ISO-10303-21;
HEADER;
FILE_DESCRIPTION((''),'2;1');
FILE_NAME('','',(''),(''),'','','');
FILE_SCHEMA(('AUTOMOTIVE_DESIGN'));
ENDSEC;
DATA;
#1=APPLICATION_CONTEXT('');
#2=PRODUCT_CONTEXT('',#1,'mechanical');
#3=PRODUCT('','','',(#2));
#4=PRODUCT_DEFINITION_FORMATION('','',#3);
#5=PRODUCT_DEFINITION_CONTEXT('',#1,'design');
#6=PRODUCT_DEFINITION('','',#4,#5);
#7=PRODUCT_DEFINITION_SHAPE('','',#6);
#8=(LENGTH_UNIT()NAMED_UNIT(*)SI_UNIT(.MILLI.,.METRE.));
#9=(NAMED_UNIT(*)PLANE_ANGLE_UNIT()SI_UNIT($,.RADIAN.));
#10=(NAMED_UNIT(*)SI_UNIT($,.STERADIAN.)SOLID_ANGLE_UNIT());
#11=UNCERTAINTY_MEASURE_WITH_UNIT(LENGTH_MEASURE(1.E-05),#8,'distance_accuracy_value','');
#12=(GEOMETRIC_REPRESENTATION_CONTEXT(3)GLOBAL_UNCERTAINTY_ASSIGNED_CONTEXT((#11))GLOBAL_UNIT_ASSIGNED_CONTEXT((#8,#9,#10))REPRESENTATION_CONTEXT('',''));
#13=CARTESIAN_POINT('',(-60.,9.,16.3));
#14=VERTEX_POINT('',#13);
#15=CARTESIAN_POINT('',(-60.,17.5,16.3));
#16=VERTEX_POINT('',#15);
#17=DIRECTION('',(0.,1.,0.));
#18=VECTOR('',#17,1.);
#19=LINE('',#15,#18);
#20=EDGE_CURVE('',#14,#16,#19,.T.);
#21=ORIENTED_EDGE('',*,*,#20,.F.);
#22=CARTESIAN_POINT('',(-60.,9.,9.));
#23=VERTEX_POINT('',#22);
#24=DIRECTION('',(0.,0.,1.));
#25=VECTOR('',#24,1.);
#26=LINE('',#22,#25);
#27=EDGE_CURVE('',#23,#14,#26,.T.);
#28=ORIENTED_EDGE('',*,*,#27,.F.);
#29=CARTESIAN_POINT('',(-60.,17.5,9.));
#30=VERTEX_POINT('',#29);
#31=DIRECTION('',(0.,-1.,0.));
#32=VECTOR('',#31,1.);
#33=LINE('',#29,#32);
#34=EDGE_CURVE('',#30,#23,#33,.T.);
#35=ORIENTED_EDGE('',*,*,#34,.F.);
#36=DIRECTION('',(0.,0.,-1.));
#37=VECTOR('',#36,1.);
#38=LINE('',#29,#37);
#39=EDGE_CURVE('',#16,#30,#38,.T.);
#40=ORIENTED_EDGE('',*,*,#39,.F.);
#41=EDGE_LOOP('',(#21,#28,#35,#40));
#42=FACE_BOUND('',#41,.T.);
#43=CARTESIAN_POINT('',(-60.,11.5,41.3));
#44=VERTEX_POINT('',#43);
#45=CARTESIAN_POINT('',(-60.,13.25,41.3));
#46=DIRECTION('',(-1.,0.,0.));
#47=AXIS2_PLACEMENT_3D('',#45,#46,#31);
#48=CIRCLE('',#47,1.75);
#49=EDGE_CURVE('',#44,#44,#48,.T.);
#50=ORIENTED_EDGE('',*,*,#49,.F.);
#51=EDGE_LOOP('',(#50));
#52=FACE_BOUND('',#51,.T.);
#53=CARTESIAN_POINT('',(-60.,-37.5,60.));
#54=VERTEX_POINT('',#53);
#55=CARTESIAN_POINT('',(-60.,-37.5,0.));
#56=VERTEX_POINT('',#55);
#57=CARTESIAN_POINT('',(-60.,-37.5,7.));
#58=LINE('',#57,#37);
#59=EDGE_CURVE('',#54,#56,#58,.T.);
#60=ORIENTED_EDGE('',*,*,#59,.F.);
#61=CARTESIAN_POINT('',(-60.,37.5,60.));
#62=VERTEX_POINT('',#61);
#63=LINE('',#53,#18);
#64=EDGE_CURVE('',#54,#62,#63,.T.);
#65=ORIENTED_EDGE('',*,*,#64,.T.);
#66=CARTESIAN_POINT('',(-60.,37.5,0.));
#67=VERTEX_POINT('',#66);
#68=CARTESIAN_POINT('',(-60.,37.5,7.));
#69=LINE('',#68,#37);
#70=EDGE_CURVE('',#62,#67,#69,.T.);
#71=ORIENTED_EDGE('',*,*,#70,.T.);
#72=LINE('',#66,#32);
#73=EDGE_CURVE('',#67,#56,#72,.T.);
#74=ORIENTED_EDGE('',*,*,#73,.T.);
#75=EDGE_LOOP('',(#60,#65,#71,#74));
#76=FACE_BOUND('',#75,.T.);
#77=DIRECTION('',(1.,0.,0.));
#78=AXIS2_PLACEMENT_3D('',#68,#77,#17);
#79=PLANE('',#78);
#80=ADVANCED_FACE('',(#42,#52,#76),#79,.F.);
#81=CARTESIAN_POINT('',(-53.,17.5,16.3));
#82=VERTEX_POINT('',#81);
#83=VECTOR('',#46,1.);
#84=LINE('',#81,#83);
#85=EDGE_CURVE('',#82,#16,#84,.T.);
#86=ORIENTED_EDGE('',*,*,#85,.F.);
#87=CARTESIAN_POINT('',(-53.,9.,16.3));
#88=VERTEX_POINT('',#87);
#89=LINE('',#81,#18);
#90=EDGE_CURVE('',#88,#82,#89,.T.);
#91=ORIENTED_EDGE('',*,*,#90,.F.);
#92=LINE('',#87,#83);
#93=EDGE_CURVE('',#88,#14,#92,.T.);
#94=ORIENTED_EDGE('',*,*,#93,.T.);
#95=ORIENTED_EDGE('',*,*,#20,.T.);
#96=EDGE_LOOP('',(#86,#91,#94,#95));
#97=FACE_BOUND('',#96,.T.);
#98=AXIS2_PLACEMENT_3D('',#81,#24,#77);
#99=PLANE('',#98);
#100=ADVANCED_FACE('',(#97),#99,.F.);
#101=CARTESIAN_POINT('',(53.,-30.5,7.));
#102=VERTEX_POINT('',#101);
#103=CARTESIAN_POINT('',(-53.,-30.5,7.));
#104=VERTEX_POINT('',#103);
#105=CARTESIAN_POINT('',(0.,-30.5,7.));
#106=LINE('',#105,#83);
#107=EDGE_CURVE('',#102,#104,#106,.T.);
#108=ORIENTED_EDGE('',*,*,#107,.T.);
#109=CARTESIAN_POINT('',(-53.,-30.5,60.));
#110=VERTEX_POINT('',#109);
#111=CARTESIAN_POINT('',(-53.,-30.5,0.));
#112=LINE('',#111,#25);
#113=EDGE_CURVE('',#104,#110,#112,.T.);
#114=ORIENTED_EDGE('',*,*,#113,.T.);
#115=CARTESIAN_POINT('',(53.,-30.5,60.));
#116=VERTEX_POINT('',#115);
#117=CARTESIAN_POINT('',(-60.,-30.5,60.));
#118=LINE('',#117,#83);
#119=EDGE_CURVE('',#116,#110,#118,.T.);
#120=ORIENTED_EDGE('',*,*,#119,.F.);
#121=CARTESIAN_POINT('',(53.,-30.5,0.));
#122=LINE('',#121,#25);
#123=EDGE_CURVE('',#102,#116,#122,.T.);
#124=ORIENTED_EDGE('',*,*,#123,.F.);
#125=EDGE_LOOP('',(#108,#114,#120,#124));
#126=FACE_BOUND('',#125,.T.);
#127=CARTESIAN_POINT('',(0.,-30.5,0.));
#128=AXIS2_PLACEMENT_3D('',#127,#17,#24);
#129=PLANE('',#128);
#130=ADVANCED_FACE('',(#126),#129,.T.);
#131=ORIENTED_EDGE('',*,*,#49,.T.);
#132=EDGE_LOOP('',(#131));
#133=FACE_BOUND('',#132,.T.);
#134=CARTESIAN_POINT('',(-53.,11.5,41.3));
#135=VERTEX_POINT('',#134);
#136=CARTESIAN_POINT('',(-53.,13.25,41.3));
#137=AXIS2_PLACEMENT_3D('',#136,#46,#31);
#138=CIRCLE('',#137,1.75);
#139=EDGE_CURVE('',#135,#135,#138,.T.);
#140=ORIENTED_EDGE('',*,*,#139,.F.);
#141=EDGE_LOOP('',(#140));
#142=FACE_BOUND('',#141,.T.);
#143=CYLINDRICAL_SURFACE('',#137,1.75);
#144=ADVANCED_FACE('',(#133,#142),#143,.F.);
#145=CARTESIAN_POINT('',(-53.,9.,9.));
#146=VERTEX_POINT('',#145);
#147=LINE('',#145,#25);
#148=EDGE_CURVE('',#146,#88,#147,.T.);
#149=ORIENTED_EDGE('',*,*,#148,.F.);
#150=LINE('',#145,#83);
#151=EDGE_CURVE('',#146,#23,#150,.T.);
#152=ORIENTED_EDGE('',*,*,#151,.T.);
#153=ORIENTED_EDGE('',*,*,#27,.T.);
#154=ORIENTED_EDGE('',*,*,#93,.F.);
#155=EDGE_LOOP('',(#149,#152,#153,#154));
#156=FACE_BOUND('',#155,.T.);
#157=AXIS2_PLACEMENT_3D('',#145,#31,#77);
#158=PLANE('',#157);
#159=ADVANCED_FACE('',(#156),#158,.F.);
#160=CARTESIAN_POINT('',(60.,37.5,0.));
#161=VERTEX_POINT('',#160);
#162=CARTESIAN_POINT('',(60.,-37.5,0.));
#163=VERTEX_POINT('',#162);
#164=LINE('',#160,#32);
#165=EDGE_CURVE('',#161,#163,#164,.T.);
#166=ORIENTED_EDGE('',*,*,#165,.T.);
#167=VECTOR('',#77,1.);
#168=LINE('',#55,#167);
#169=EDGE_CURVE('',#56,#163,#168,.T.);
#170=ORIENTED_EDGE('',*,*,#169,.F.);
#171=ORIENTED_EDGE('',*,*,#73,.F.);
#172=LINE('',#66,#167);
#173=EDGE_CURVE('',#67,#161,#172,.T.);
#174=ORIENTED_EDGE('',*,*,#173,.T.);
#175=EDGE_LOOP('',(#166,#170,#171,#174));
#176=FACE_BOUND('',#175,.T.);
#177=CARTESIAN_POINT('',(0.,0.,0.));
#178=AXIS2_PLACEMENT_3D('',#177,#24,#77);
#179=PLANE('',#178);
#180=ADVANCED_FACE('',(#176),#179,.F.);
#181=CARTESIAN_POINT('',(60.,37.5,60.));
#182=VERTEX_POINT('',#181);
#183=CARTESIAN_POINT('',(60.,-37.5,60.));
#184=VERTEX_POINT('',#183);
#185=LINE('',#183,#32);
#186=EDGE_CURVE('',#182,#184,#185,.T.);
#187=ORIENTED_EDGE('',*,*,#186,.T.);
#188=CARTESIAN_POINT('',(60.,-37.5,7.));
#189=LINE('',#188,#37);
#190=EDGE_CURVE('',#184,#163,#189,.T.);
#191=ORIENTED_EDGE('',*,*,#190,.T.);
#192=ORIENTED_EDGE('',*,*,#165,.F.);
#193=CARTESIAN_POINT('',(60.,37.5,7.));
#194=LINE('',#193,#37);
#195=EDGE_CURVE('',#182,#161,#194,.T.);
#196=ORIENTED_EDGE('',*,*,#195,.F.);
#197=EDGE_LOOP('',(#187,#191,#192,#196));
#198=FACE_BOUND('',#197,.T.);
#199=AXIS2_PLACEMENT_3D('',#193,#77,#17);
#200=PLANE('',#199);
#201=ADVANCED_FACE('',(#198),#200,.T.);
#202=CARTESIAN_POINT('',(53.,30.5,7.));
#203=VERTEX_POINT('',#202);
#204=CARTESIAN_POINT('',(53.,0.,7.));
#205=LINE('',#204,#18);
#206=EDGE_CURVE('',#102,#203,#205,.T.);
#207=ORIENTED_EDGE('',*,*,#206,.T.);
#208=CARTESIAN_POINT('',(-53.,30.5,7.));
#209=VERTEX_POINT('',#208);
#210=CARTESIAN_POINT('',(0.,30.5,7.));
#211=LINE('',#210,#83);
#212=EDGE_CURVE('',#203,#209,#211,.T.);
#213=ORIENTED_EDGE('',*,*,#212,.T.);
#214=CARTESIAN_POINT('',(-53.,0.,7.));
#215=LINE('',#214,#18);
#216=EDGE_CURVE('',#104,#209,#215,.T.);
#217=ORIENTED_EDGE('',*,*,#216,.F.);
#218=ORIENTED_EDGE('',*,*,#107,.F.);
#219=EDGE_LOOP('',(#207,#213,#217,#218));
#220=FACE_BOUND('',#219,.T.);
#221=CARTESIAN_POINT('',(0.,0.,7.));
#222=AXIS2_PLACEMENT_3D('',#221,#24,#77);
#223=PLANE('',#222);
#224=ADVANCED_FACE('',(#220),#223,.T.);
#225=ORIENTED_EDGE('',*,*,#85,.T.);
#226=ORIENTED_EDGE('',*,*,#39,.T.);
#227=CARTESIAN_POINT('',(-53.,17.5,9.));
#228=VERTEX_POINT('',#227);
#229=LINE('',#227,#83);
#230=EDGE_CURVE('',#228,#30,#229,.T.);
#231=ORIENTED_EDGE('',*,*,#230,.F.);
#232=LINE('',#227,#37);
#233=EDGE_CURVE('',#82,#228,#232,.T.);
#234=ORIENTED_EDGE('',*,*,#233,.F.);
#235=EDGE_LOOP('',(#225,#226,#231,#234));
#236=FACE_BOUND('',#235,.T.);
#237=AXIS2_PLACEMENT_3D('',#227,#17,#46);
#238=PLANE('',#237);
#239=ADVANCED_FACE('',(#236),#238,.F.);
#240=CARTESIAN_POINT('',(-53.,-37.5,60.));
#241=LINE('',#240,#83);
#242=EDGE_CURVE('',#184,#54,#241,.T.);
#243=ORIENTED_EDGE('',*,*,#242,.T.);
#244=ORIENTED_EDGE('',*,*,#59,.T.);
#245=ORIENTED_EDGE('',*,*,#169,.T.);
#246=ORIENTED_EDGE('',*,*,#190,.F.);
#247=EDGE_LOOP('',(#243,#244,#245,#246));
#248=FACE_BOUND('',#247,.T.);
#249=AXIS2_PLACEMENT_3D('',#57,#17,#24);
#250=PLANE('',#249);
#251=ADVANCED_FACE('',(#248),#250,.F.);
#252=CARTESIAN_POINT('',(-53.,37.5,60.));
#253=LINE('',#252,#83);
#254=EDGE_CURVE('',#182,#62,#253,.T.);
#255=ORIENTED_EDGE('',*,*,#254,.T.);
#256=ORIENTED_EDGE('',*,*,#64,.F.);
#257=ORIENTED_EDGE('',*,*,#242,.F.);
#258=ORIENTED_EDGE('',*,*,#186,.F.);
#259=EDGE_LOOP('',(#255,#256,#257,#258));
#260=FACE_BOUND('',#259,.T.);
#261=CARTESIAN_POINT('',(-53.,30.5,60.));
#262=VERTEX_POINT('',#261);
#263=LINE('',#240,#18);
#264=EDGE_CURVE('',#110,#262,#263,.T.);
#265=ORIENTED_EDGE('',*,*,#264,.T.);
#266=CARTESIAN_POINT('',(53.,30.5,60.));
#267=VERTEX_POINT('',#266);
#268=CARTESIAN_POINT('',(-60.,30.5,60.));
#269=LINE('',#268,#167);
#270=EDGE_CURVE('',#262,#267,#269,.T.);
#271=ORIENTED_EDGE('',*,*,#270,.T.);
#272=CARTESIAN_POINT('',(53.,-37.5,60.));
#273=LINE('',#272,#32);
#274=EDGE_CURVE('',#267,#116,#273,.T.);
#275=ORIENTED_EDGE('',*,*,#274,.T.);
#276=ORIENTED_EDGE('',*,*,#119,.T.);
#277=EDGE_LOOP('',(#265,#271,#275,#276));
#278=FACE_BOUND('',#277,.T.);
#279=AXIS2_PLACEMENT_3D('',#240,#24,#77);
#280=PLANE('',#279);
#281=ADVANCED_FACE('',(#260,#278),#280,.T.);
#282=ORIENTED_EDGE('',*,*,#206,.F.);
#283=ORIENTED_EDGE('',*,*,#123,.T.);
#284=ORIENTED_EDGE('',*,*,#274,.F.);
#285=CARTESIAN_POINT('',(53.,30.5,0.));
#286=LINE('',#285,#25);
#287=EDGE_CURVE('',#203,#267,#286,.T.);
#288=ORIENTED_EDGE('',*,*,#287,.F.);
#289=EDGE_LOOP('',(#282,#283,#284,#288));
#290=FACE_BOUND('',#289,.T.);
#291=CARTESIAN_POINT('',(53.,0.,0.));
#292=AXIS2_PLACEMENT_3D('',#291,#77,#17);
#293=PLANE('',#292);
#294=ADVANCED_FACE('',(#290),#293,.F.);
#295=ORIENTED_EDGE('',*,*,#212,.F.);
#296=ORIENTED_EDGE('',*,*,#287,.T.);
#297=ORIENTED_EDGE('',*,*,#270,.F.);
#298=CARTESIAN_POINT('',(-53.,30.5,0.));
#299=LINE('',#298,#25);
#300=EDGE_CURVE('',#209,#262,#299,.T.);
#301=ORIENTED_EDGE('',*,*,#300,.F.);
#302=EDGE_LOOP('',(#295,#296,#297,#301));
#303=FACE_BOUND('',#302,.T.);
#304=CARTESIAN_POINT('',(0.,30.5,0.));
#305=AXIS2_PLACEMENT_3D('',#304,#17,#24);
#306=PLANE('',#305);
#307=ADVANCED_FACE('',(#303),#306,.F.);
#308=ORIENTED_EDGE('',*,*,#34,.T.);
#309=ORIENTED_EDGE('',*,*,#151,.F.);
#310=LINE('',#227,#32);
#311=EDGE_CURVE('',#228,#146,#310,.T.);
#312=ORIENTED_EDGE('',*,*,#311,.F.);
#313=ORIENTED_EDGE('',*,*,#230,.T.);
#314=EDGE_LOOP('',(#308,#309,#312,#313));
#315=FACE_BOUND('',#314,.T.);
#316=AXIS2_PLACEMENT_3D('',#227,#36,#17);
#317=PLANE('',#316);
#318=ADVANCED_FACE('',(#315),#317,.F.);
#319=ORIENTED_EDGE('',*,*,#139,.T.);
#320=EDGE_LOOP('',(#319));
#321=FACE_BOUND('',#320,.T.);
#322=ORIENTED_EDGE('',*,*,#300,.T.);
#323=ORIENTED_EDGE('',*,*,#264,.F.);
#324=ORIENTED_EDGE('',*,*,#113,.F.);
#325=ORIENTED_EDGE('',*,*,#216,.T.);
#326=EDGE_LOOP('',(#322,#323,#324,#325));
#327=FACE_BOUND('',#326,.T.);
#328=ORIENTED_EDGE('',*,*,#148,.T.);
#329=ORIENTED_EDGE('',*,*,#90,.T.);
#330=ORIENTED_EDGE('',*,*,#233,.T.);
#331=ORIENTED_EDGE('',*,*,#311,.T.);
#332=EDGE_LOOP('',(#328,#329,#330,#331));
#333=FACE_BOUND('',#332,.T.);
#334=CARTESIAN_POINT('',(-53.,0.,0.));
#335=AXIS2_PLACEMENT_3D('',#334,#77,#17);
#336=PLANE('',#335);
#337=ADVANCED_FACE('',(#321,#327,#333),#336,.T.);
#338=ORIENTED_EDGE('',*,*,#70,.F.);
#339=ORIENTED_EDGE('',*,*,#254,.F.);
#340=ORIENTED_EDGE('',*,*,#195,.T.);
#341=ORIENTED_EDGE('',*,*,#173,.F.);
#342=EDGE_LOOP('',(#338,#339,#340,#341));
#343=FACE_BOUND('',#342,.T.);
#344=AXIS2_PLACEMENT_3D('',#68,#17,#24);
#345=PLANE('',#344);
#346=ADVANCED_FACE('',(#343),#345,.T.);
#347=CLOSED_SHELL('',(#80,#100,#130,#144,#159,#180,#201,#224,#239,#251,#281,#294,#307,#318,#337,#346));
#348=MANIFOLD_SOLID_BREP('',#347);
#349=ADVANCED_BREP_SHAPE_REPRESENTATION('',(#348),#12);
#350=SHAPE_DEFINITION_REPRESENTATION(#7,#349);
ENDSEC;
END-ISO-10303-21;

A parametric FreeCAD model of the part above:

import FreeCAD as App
import Part
import Sketcher
from FreeCAD import Vector
Q = App.Units.Quantity

doc = App.newDocument("Part")
body = doc.addObject("PartDesign::Body", "Body")

# Sketch on XY plane
sketch1 = body.newObject("Sketcher::SketchObject", "Sketch")
sketch1.AttachmentSupport = (doc.getObject("XY_Plane"), [""])
sketch1.MapMode = "FlatFace"
sketch1.addGeometry([
    Part.LineSegment(Vector(-60, 38, 0), Vector(-60, -38, 0)),
    Part.LineSegment(Vector(-60, -38, 0), Vector(60, -38, 0)),
    Part.LineSegment(Vector(60, -38, 0), Vector(60, 38, 0)),
    Part.LineSegment(Vector(60, 38, 0), Vector(-60, 38, 0)),
], False)
sketch1.addConstraint([
    Sketcher.Constraint("Coincident", 0, 2, 1, 1),
    Sketcher.Constraint("Coincident", 1, 2, 2, 1),
    Sketcher.Constraint("Coincident", 2, 2, 3, 1),
    Sketcher.Constraint("Coincident", 3, 2, 0, 1),
    Sketcher.Constraint("Vertical", 0),
    Sketcher.Constraint("Horizontal", 1),
    Sketcher.Constraint("Vertical", 2),
    Sketcher.Constraint("Horizontal", 3),
    Sketcher.Constraint("Symmetric", 0, 2, 2, 2, -1, 1),
    Sketcher.Constraint("DistanceX", 1, 1, 1, 2, Q("120 mm")),
    Sketcher.Constraint("DistanceY", 0, 2, 0, 1, Q("75 mm")),
])
pad1 = body.newObject("PartDesign::Pad", "Pad")
pad1.Profile = sketch1
pad1.Length = 7

# Sketch on YZ plane
sketch2 = body.newObject("Sketcher::SketchObject", "Sketch001")
sketch2.AttachmentSupport = (doc.getObject("YZ_Plane"), [""])
sketch2.MapMode = "FlatFace"
sketch2.AttachmentOffset = App.Placement(Vector(0, 0, -60), App.Rotation())
sketch2.addGeometry([
    Part.LineSegment(Vector(38, 0, 0), Vector(-38, 0, 0)),
    Part.LineSegment(Vector(-38, 0, 0), Vector(-38, 60, 0)),
    Part.LineSegment(Vector(-38, 60, 0), Vector(38, 60, 0)),
    Part.LineSegment(Vector(38, 60, 0), Vector(38, 0, 0)),
], False)
sketch2.addConstraint([
    Sketcher.Constraint("Coincident", 0, 2, 1, 1),
    Sketcher.Constraint("Coincident", 1, 2, 2, 1),
    Sketcher.Constraint("Coincident", 2, 2, 3, 1),
    Sketcher.Constraint("Coincident", 3, 2, 0, 1),
    Sketcher.Constraint("Horizontal", 0),
    Sketcher.Constraint("Vertical", 1),
    Sketcher.Constraint("Horizontal", 2),
    Sketcher.Constraint("Vertical", 3),
    Sketcher.Constraint("Symmetric", 0, 2, 3, 2, -1, 1),
    Sketcher.Constraint("DistanceX", 0, 2, 0, 1, Q("75 mm")),
    Sketcher.Constraint("DistanceY", 1, 1, 1, 2, Q("60 mm")),
])
pad2 = body.newObject("PartDesign::Pad", "Pad001")
pad2.Profile = sketch2
pad2.Length = 7

# Sketch on YZ plane
sketch3 = body.newObject("Sketcher::SketchObject", "Sketch002")
sketch3.AttachmentSupport = (doc.getObject("YZ_Plane"), [""])
sketch3.MapMode = "FlatFace"
sketch3.AttachmentOffset = App.Placement(Vector(0, 0, 60), App.Rotation())
sketch3.addGeometry([
    Part.LineSegment(Vector(38, 60, 0), Vector(-38, 60, 0)),
    Part.LineSegment(Vector(-38, 60, 0), Vector(-38, 0, 0)),
    Part.LineSegment(Vector(-38, 0, 0), Vector(38, 0, 0)),
    Part.LineSegment(Vector(38, 0, 0), Vector(38, 60, 0)),
], False)
sketch3.addConstraint([
    Sketcher.Constraint("Coincident", 0, 2, 1, 1),
    Sketcher.Constraint("Coincident", 1, 2, 2, 1),
    Sketcher.Constraint("Coincident", 2, 2, 3, 1),
    Sketcher.Constraint("Coincident", 3, 2, 0, 1),
    Sketcher.Constraint("Horizontal", 0),
    Sketcher.Constraint("Vertical", 1),
    Sketcher.Constraint("Horizontal", 2),
    Sketcher.Constraint("Vertical", 3),
    Sketcher.Constraint("Symmetric", 1, 2, 2, 2, -1, 1),
    Sketcher.Constraint("DistanceX", 0, 2, 0, 1, Q("75 mm")),
    Sketcher.Constraint("DistanceY", 1, 2, 1, 1, Q("60 mm")),
])
pad3 = body.newObject("PartDesign::Pad", "Pad002")
pad3.Profile = sketch3
pad3.Length = 7
pad3.Reversed = True

# Sketch on XZ plane
sketch4 = body.newObject("Sketcher::SketchObject", "Sketch003")
sketch4.AttachmentSupport = (doc.getObject("XZ_Plane"), [""])
sketch4.MapMode = "FlatFace"
sketch4.AttachmentOffset = App.Placement(Vector(0, 0, 37.5), App.Rotation())
sketch4.addGeometry([
    Part.LineSegment(Vector(60, 0, 0), Vector(60, 60, 0)),
    Part.LineSegment(Vector(60, 60, 0), Vector(-60, 60, 0)),
    Part.LineSegment(Vector(-60, 60, 0), Vector(-60, 0, 0)),
    Part.LineSegment(Vector(-60, 0, 0), Vector(60, 0, 0)),
], False)
sketch4.addConstraint([
    Sketcher.Constraint("Coincident", 0, 2, 1, 1),
    Sketcher.Constraint("Coincident", 1, 2, 2, 1),
    Sketcher.Constraint("Coincident", 2, 2, 3, 1),
    Sketcher.Constraint("Coincident", 3, 2, 0, 1),
    Sketcher.Constraint("Vertical", 0),
    Sketcher.Constraint("Horizontal", 1),
    Sketcher.Constraint("Vertical", 2),
    Sketcher.Constraint("Horizontal", 3),
    Sketcher.Constraint("Symmetric", 2, 2, 3, 2, -1, 1),
    Sketcher.Constraint("DistanceX", 1, 2, 1, 1, Q("120 mm")),
    Sketcher.Constraint("DistanceY", 0, 1, 0, 2, Q("60 mm")),
])
pad4 = body.newObject("PartDesign::Pad", "Pad003")
pad4.Profile = sketch4
pad4.Length = 7
pad4.Reversed = True

# Sketch on XZ plane
sketch5 = body.newObject("Sketcher::SketchObject", "Sketch004")
sketch5.AttachmentSupport = (doc.getObject("XZ_Plane"), [""])
sketch5.MapMode = "FlatFace"
sketch5.AttachmentOffset = App.Placement(Vector(0, 0, -37.5), App.Rotation())
sketch5.addGeometry([
    Part.LineSegment(Vector(-60, 0, 0), Vector(-60, 60, 0)),
    Part.LineSegment(Vector(-60, 60, 0), Vector(60, 60, 0)),
    Part.LineSegment(Vector(60, 60, 0), Vector(60, 0, 0)),
    Part.LineSegment(Vector(60, 0, 0), Vector(-60, 0, 0)),
], False)
sketch5.addConstraint([
    Sketcher.Constraint("Coincident", 0, 2, 1, 1),
    Sketcher.Constraint("Coincident", 1, 2, 2, 1),
    Sketcher.Constraint("Coincident", 2, 2, 3, 1),
    Sketcher.Constraint("Coincident", 3, 2, 0, 1),
    Sketcher.Constraint("Vertical", 0),
    Sketcher.Constraint("Horizontal", 1),
    Sketcher.Constraint("Vertical", 2),
    Sketcher.Constraint("Horizontal", 3),
    Sketcher.Constraint("Symmetric", 2, 2, 3, 2, -1, 1),
    Sketcher.Constraint("DistanceX", 1, 1, 1, 2, Q("120 mm")),
    Sketcher.Constraint("DistanceY", 0, 1, 0, 2, Q("60 mm")),
])
pad5 = body.newObject("PartDesign::Pad", "Pad004")
pad5.Profile = sketch5
pad5.Length = 7

# Sketch on YZ plane
sketch6 = body.newObject("Sketcher::SketchObject", "Sketch005")
sketch6.AttachmentSupport = (doc.getObject("YZ_Plane"), [""])
sketch6.MapMode = "FlatFace"
sketch6.AttachmentOffset = App.Placement(Vector(0, 0, -60), App.Rotation())
sketch6.addGeometry([
    Part.Circle(Vector(13.2, 41.3, 0), Vector(0, 0, 1), 1.8),  # 0
    Part.LineSegment(Vector(17.5, 9, 0), Vector(9, 9, 0)),  # 1
    Part.LineSegment(Vector(9, 9, 0), Vector(9, 16.3, 0)),  # 2
    Part.LineSegment(Vector(9, 16.3, 0), Vector(17.5, 16.3, 0)),  # 3
    Part.LineSegment(Vector(17.5, 16.3, 0), Vector(17.5, 9, 0)),  # 4
], False)
sketch6.addConstraint([
    Sketcher.Constraint("Coincident", 1, 2, 2, 1),
    Sketcher.Constraint("Coincident", 2, 2, 3, 1),
    Sketcher.Constraint("Coincident", 3, 2, 4, 1),
    Sketcher.Constraint("Coincident", 4, 2, 1, 1),
    Sketcher.Constraint("Horizontal", 1),
    Sketcher.Constraint("Vertical", 2),
    Sketcher.Constraint("Horizontal", 3),
    Sketcher.Constraint("Vertical", 4),
    Sketcher.Constraint("Diameter", 0, Q("3.5 mm")),
    Sketcher.Constraint("DistanceX", 1, 2, 1, 1, Q("8.5 mm")),
    Sketcher.Constraint("DistanceY", 2, 1, 2, 2, Q("7.3 mm")),
    Sketcher.Constraint("DistanceX", -1, 1, 1, 2, Q("9 mm")),
    Sketcher.Constraint("DistanceY", -1, 1, 1, 2, Q("9 mm")),
    Sketcher.Constraint("DistanceY", 2, 2, 0, 3, Q("25 mm")),
    Sketcher.Constraint("DistanceX", -1, 1, 0, 3, Q("13.25 mm")),
])
pocket1 = body.newObject("PartDesign::Pocket", "Pocket")
pocket1.Profile = sketch6
pocket1.Length = 7
pocket1.Reversed = True

doc.recompute()
